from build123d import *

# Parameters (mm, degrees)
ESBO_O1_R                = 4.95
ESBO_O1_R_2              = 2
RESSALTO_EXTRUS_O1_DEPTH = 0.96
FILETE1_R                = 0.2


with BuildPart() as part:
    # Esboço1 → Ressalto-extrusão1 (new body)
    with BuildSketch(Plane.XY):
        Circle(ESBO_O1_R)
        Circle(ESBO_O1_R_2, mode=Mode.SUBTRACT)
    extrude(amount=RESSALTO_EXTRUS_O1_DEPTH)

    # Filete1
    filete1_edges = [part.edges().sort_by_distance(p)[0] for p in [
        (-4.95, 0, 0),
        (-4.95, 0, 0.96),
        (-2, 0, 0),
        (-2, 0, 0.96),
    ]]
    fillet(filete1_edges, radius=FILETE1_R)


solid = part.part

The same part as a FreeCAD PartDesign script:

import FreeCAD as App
import Part
import Sketcher

V = App.Vector
Q = App.Units.Quantity


def edges_at(feature, points):
    """Names of the edges that pass closest to the given points."""
    edges = feature.Shape.Edges
    near = lambda p: min(range(len(edges)), key=lambda i: edges[i].distToShape(Part.Vertex(*p))[0])
    return sorted({f"Edge{near(p) + 1}" for p in points})

doc = App.newDocument("Part")
body = doc.addObject("PartDesign::Body", "Body")

sketch1 = body.newObject("Sketcher::SketchObject", "Sketch")
sketch1.AttachmentSupport = (doc.getObject("XY_Plane"), [""])
sketch1.MapMode = "FlatFace"
sketch1.addGeometry(Part.Circle(V(0, 0, 0), V(0, 0, 1), 5), False)
sketch1.addGeometry(Part.Circle(V(0, 0, 0), V(0, 0, 1), 2), False)
sketch1.addConstraint(Sketcher.Constraint("Coincident", 0, 3, -1, 1))
sketch1.addConstraint(Sketcher.Constraint("Coincident", 1, 3, -1, 1))
sketch1.addConstraint(Sketcher.Constraint("Diameter", 1, Q("4 mm")))
sketch1.addConstraint(Sketcher.Constraint("Diameter", 0, Q("9.9 mm")))
pad1 = body.newObject("PartDesign::Pad", "Pad")
pad1.Profile = sketch1
pad1.Length = 0.96
doc.recompute()

fillet = body.newObject("PartDesign::Fillet", "Fillet")
fillet.Base = (pad1, edges_at(pad1, [
    (-4.95, 0, 0),
    (-4.95, 0, 0.96),
    (-2, 0, 0),
    (-2, 0, 0.96),
]))
fillet.Radius = 0.2

doc.recompute()
